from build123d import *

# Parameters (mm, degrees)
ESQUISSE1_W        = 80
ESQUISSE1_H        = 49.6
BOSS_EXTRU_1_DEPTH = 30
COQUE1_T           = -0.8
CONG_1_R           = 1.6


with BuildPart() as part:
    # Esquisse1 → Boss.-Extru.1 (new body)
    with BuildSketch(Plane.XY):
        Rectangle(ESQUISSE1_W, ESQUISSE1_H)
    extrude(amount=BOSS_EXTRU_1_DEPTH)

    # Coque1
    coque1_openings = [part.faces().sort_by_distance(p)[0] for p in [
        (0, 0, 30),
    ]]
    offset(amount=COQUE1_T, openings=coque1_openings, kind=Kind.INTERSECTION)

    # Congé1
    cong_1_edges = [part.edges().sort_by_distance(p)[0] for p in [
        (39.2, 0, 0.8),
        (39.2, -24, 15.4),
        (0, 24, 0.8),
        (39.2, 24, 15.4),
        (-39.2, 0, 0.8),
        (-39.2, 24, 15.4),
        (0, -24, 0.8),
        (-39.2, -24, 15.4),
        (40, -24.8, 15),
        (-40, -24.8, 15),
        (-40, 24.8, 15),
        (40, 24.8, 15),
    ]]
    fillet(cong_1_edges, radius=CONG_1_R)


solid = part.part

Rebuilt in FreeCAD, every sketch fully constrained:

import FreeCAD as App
import Part
import Sketcher
from FreeCAD import Vector


def edges_at(feature, points):
    """Names of the edges that pass closest to the given points."""
    edges = feature.Shape.Edges
    near = lambda p: min(range(len(edges)), key=lambda i: edges[i].distToShape(Part.Vertex(*p))[0])
    return sorted({f"Edge{near(p) + 1}" for p in points})


def faces_at(feature, points):
    """Names of the faces that lie closest to the given points."""
    faces = feature.Shape.Faces
    near = lambda p: min(range(len(faces)), key=lambda i: faces[i].distToShape(Part.Vertex(*p))[0])
    return sorted({f"Face{near(p) + 1}" for p in points})

doc = App.newDocument("Part")
params = doc.addObject("Spreadsheet::Sheet", "Params")
for row, (alias, value) in enumerate([
    ("sketch1_width", "80 mm"),
    ("sketch1_height", "49.6 mm"),
    ("pad1_length", "30 mm"),
    ("thickness_wall", "0.8 mm"),
    ("fillet_radius", "1.6 mm"),
], start=1):
    params.set(f"A{row}", alias)
    params.set(f"B{row}", "=" + value)
    params.setAlias(f"B{row}", alias)

body = doc.addObject("PartDesign::Body", "Body")

sketch1 = body.newObject("Sketcher::SketchObject", "Sketch")
sketch1.AttachmentSupport = (doc.getObject("XY_Plane"), [""])
sketch1.MapMode = "FlatFace"
sketch1.addGeometry(Part.LineSegment(Vector(-40, 25, 0), Vector(-40, -25, 0)), False)
sketch1.addGeometry(Part.LineSegment(Vector(-40, -25, 0), Vector(40, -25, 0)), False)
sketch1.addGeometry(Part.LineSegment(Vector(40, -25, 0), Vector(40, 25, 0)), False)
sketch1.addGeometry(Part.LineSegment(Vector(40, 25, 0), Vector(-40, 25, 0)), False)
sketch1.addConstraint(Sketcher.Constraint("Coincident", 0, 2, 1, 1))
sketch1.addConstraint(Sketcher.Constraint("Coincident", 1, 2, 2, 1))
sketch1.addConstraint(Sketcher.Constraint("Coincident", 2, 2, 3, 1))
sketch1.addConstraint(Sketcher.Constraint("Coincident", 3, 2, 0, 1))
sketch1.addConstraint(Sketcher.Constraint("Vertical", 0))
sketch1.addConstraint(Sketcher.Constraint("Horizontal", 1))
sketch1.addConstraint(Sketcher.Constraint("Vertical", 2))
sketch1.addConstraint(Sketcher.Constraint("Horizontal", 3))
sketch1.addConstraint(Sketcher.Constraint("Symmetric", 0, 2, 2, 2, -1, 1))
sketch1.addConstraint(Sketcher.Constraint("DistanceX", 1, 1, 1, 2, 80.0))
sketch1.addConstraint(Sketcher.Constraint("DistanceY", 0, 2, 0, 1, 49.6))
sketch1.setExpression("Constraints[9]", "Params.sketch1_width")
sketch1.setExpression("Constraints[10]", "Params.sketch1_height")
pad1 = body.newObject("PartDesign::Pad", "Pad")
pad1.Profile = sketch1
pad1.setExpression("Length", "Params.pad1_length")
doc.recompute()

thickness = body.newObject("PartDesign::Thickness", "Thickness")
thickness.Base = (pad1, faces_at(pad1, [(0, 0, 30)]))
thickness.setExpression("Value", "Params.thickness_wall")
thickness.Reversed = True
thickness.Join = "Intersection"
doc.recompute()

fillet = body.newObject("PartDesign::Fillet", "Fillet")
fillet.Base = (thickness, edges_at(thickness, [
    (39.2, 0, 0.8),
    (39.2, -24, 15.4),
    (0, 24, 0.8),
    (39.2, 24, 15.4),
    (-39.2, 0, 0.8),
    (-39.2, 24, 15.4),
    (0, -24, 0.8),
    (-39.2, -24, 15.4),
    (40, -24.8, 15),
    (-40, -24.8, 15),
    (-40, 24.8, 15),
    (40, 24.8, 15),
]))
fillet.setExpression("Radius", "Params.fillet_radius")

doc.recompute()
